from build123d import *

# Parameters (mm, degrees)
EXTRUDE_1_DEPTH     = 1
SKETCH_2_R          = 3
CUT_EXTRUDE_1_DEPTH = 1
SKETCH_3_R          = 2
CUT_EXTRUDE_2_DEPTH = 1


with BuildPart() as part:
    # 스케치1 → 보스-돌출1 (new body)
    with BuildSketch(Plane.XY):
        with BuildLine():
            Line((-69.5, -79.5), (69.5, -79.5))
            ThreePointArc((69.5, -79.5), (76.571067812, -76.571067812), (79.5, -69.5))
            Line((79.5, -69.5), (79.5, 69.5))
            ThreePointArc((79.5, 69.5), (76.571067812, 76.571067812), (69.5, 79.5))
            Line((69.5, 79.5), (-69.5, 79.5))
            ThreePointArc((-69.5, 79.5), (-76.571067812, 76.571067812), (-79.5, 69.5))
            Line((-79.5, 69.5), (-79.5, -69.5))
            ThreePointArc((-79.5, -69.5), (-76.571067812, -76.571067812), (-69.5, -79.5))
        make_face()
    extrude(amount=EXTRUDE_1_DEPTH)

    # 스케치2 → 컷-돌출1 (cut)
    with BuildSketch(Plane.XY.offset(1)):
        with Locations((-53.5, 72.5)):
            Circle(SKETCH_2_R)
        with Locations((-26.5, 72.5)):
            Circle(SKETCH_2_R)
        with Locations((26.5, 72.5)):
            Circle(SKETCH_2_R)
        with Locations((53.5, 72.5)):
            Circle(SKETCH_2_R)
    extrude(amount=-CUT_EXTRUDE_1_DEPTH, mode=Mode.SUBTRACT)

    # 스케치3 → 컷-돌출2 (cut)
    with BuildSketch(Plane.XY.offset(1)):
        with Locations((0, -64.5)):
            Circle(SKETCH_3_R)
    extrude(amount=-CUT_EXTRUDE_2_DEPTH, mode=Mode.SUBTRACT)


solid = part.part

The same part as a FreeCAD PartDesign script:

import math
import FreeCAD as App
import Part
import Sketcher

V = App.Vector

doc = App.newDocument("Part")
body = doc.addObject("PartDesign::Body", "Body")

# Sketch on XY plane
sketch1 = body.newObject("Sketcher::SketchObject", "Sketch")
sketch1.AttachmentSupport = (doc.getObject("XY_Plane"), [""])
sketch1.MapMode = "FlatFace"
sketch1.addGeometry([
    Part.LineSegment(V(-69.5, -79.5, 0), V(69.5, -79.5, 0)),  # 0
    Part.ArcOfCircle(Part.Circle(V(69.5, -69.5, 0), V(0, 0, 1), 10), math.radians(-90), math.radians(0)),  # 1
    Part.LineSegment(V(79.5, -69.5, 0), V(79.5, 69.5, 0)),  # 2
    Part.ArcOfCircle(Part.Circle(V(69.5, 69.5, 0), V(0, 0, 1), 10), math.radians(0), math.radians(90)),  # 3
    Part.LineSegment(V(69.5, 79.5, 0), V(-69.5, 79.5, 0)),  # 4
    Part.ArcOfCircle(Part.Circle(V(-69.5, 69.5, 0), V(0, 0, 1), 10), math.radians(90), math.radians(180)),  # 5
    Part.LineSegment(V(-79.5, 69.5, 0), V(-79.5, -69.5, 0)),  # 6
    Part.ArcOfCircle(Part.Circle(V(-69.5, -69.5, 0), V(0, 0, 1), 10), math.radians(180), math.radians(270)),  # 7
], False)
sketch1.addConstraint([
    Sketcher.Constraint("Tangent", 0, 2, 1, 1),
    Sketcher.Constraint("Tangent", 1, 2, 2, 1),
    Sketcher.Constraint("Tangent", 2, 2, 3, 1),
    Sketcher.Constraint("Tangent", 3, 2, 4, 1),
    Sketcher.Constraint("Tangent", 4, 2, 5, 1),
    Sketcher.Constraint("Tangent", 5, 2, 6, 1),
    Sketcher.Constraint("Tangent", 6, 2, 7, 1),
    Sketcher.Constraint("Tangent", 7, 2, 0, 1),
    Sketcher.Constraint("Horizontal", 0),
    Sketcher.Constraint("Vertical", 2),
    Sketcher.Constraint("Horizontal", 4),
    Sketcher.Constraint("Vertical", 6),
    Sketcher.Constraint("Equal", 1, 3),
    Sketcher.Constraint("Equal", 3, 5),
    Sketcher.Constraint("Equal", 5, 7),
    Sketcher.Constraint("Symmetric", 1, 3, 5, 3, -1, 1),
    Sketcher.Constraint("Equal", 4, 2),
    Sketcher.Constraint("Radius", 1, 10.0),
    Sketcher.Constraint("DistanceX", 0, 1, 0, 2, 139.0),
])
pad1 = body.newObject("PartDesign::Pad", "Pad")
pad1.Profile = sketch1
pad1.Length = 1

# Sketch on XY plane
sketch2 = body.newObject("Sketcher::SketchObject", "Sketch001")
sketch2.AttachmentSupport = (doc.getObject("XY_Plane"), [""])
sketch2.MapMode = "FlatFace"
sketch2.AttachmentOffset = App.Placement(V(0, 0, 1), App.Rotation())
sketch2.addGeometry([
    Part.Circle(V(-53.5, 72.5, 0), V(0, 0, 1), 3),
    Part.Circle(V(-26.5, 72.5, 0), V(0, 0, 1), 3),
    Part.Circle(V(26.5, 72.5, 0), V(0, 0, 1), 3),
    Part.Circle(V(53.5, 72.5, 0), V(0, 0, 1), 3),
], False)
sketch2.addConstraint([
    Sketcher.Constraint("Equal", 0, 1),
    Sketcher.Constraint("Equal", 1, 2),
    Sketcher.Constraint("Equal", 2, 3),
    Sketcher.Constraint("Symmetric", 1, 3, 2, 3, -2),
    Sketcher.Constraint("Symmetric", 0, 3, 3, 3, -2),
    Sketcher.Constraint("Horizontal", 0, 3, 1, 3),
    Sketcher.Constraint("Diameter", 0, 6.0),
    Sketcher.Constraint("DistanceX", 0, 3, 1, 3, 27.0),
    Sketcher.Constraint("DistanceX", 1, 3, 2, 3, 53.0),
    Sketcher.Constraint("DistanceY", -1, 1, 0, 3, 72.5),
])
pocket1 = body.newObject("PartDesign::Pocket", "Pocket")
pocket1.Profile = sketch2
pocket1.Length = 1

# Sketch on XY plane
sketch3 = body.newObject("Sketcher::SketchObject", "Sketch002")
sketch3.AttachmentSupport = (doc.getObject("XY_Plane"), [""])
sketch3.MapMode = "FlatFace"
sketch3.AttachmentOffset = App.Placement(V(0, 0, 1), App.Rotation())
sketch3.addGeometry(Part.Circle(V(0, -64.5, 0), V(0, 0, 1), 2), False)
sketch3.addConstraint([
    Sketcher.Constraint("PointOnObject", 0, 3, -2),
    Sketcher.Constraint("Diameter", 0, 4.0),
    Sketcher.Constraint("DistanceY", 0, 3, -1, 1, 64.5),
])
pocket2 = body.newObject("PartDesign::Pocket", "Pocket001")
pocket2.Profile = sketch3
pocket2.Length = 1

doc.recompute()
